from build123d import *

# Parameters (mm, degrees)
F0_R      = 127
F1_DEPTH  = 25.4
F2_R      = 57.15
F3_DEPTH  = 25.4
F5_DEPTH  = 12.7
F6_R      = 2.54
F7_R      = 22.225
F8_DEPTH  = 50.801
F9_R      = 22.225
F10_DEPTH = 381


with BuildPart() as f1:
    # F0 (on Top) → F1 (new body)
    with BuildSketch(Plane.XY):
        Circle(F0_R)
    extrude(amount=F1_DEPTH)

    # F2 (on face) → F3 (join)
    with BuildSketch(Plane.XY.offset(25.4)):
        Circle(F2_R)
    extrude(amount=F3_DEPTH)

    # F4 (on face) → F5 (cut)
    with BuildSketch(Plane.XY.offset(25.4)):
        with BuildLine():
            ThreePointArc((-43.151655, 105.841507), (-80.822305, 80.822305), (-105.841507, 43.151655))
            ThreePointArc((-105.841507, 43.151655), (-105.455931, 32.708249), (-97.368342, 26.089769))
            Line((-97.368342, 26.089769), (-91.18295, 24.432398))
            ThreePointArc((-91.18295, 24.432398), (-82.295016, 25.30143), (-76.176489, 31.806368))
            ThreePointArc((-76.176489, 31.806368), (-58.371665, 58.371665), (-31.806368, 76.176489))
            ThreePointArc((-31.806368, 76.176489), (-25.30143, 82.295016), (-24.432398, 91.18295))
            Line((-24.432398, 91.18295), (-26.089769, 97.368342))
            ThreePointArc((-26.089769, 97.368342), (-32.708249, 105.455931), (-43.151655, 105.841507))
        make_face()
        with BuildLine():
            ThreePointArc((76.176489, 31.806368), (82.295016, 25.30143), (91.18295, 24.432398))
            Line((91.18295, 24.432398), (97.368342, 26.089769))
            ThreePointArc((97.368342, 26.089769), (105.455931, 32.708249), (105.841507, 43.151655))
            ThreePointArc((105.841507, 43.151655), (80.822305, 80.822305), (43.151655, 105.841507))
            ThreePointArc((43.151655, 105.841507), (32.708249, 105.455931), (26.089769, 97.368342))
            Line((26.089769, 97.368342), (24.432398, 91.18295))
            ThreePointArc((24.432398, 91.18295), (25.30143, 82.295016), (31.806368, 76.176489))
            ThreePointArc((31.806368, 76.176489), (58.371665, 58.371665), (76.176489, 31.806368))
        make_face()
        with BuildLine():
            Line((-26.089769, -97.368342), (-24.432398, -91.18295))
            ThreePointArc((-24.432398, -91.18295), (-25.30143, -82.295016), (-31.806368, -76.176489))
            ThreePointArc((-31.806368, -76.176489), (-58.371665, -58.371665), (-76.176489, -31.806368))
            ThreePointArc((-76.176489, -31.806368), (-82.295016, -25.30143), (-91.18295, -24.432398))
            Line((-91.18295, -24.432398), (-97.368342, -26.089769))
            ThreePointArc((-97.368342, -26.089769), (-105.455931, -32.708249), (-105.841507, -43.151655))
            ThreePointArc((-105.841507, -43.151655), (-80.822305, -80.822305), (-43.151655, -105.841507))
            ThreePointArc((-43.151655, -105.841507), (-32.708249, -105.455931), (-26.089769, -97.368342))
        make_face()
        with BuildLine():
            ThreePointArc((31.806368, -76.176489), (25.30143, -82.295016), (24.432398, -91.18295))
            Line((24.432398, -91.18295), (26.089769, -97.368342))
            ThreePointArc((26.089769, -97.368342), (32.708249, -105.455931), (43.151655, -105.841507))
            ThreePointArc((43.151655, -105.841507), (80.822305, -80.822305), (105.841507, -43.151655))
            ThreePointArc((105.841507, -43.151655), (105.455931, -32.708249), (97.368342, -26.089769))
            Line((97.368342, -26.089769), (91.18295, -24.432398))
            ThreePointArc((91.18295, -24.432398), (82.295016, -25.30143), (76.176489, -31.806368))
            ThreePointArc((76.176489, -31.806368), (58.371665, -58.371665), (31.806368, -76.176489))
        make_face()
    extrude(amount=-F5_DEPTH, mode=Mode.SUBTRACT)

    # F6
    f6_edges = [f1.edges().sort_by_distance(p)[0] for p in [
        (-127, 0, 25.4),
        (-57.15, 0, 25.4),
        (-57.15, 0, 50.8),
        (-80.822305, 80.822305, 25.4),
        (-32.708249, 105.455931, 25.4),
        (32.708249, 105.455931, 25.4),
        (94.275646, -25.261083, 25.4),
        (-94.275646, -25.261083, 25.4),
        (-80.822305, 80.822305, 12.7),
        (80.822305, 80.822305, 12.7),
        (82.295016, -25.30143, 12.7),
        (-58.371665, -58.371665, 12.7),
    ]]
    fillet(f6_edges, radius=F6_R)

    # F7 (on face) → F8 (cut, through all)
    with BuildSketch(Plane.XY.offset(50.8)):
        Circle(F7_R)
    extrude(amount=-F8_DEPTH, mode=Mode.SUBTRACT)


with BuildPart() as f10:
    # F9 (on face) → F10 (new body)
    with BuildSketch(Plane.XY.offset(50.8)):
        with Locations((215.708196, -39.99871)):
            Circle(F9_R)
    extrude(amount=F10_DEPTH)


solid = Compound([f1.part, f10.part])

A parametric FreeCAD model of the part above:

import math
import FreeCAD as App
import Part
import Sketcher
Q = App.Units.Quantity


def edges_at(feature, points):
    """Names of the edges that pass closest to the given points."""
    edges = feature.Shape.Edges
    near = lambda p: min(range(len(edges)), key=lambda i: edges[i].distToShape(Part.Vertex(*p))[0])
    return sorted({f"Edge{near(p) + 1}" for p in points})

doc = App.newDocument("Part")
body = doc.addObject("PartDesign::Body", "Body")

sketch1 = doc.addObject("Sketcher::SketchObject", "Sketch")
body.addObject(sketch1)
sketch1.AttachmentSupport = (doc.XY_Plane, [""])
sketch1.MapMode = "FlatFace"
sketch1.addGeometry(Part.Circle(App.Vector(0, 0, 0), App.Vector(0, 0, 1), 127), False)
sketch1.addConstraint([
    Sketcher.Constraint("Coincident", 0, 3, -1, 1),
    Sketcher.Constraint("Diameter", 0, Q("10 in")),
])
pad1 = doc.addObject("PartDesign::Pad", "Pad")
body.addObject(pad1)
pad1.Profile = sketch1
pad1.Length = Q("1 in")

sketch2 = doc.addObject("Sketcher::SketchObject", "Sketch001")
body.addObject(sketch2)
sketch2.AttachmentSupport = (doc.XY_Plane, [""])
sketch2.MapMode = "FlatFace"
sketch2.AttachmentOffset = App.Placement(App.Vector(0, 0, 1 * 25.4), App.Rotation())
sketch2.addGeometry(Part.Circle(App.Vector(0, 0, 0), App.Vector(0, 0, 1), 57), False)
sketch2.addConstraint([
    Sketcher.Constraint("Coincident", 0, 3, -1, 1),
    Sketcher.Constraint("Diameter", 0, Q("4.5 in")),
])
pad2 = doc.addObject("PartDesign::Pad", "Pad001")
body.addObject(pad2)
pad2.Profile = sketch2
pad2.Length = Q("1 in")

sketch3 = doc.addObject("Sketcher::SketchObject", "Sketch002")
body.addObject(sketch3)
sketch3.AttachmentSupport = (doc.XY_Plane, [""])
sketch3.MapMode = "FlatFace"
sketch3.AttachmentOffset = App.Placement(App.Vector(0, 0, 1 * 25.4), App.Rotation())
sketch3.addGeometry([
    Part.ArcOfCircle(Part.Circle(App.Vector(0, 0, 0), App.Vector(0, 0, 1), 114), math.radians(112), math.radians(158)),
    Part.ArcOfCircle(Part.Circle(App.Vector(-94, 38, 0), App.Vector(0, 0, 1), 13), math.radians(158), math.radians(255)),
    Part.LineSegment(App.Vector(-97, 26, 0), App.Vector(-91, 24, 0)),
    Part.ArcOfCircle(Part.Circle(App.Vector(-88, 37, 0), App.Vector(0, 0, 1), 13), math.radians(-105), math.radians(-23)),
    Part.ArcOfCircle(Part.Circle(App.Vector(0, 0, 0), App.Vector(0, 0, 1), 83), math.radians(113), math.radians(157)),
    Part.ArcOfCircle(Part.Circle(App.Vector(-37, 88, 0), App.Vector(0, 0, 1), 13), math.radians(-67), math.radians(15)),
    Part.LineSegment(App.Vector(-24, 91, 0), App.Vector(-26, 97, 0)),
    Part.ArcOfCircle(Part.Circle(App.Vector(-38, 94, 0), App.Vector(0, 0, 1), 13), math.radians(15), math.radians(112)),
    Part.ArcOfCircle(Part.Circle(App.Vector(88, 37, 0), App.Vector(0, 0, 1), 13), math.radians(-157), math.radians(-75)),
    Part.LineSegment(App.Vector(91, 24, 0), App.Vector(97, 26, 0)),
    Part.ArcOfCircle(Part.Circle(App.Vector(94, 38, 0), App.Vector(0, 0, 1), 13), math.radians(-75), math.radians(22)),
    Part.ArcOfCircle(Part.Circle(App.Vector(0, 0, 0), App.Vector(0, 0, 1), 114), math.radians(22), math.radians(68)),
    Part.ArcOfCircle(Part.Circle(App.Vector(38, 94, 0), App.Vector(0, 0, 1), 13), math.radians(68), math.radians(165)),
    Part.LineSegment(App.Vector(26, 97, 0), App.Vector(24, 91, 0)),
    Part.ArcOfCircle(Part.Circle(App.Vector(37, 88, 0), App.Vector(0, 0, 1), 13), math.radians(165), math.radians(247)),
    Part.ArcOfCircle(Part.Circle(App.Vector(0, 0, 0), App.Vector(0, 0, 1), 83), math.radians(23), math.radians(67)),
    Part.LineSegment(App.Vector(-26, -97, 0), App.Vector(-24, -91, 0)),
    Part.ArcOfCircle(Part.Circle(App.Vector(-37, -88, 0), App.Vector(0, 0, 1), 13), math.radians(-15), math.radians(67)),
    Part.ArcOfCircle(Part.Circle(App.Vector(0, 0, 0), App.Vector(0, 0, 1), 83), math.radians(-157), math.radians(-113)),
    Part.ArcOfCircle(Part.Circle(App.Vector(-88, -37, 0), App.Vector(0, 0, 1), 13), math.radians(23), math.radians(105)),
    Part.LineSegment(App.Vector(-91, -24, 0), App.Vector(-97, -26, 0)),
    Part.ArcOfCircle(Part.Circle(App.Vector(-94, -38, 0), App.Vector(0, 0, 1), 13), math.radians(105), math.radians(202)),
    Part.ArcOfCircle(Part.Circle(App.Vector(0, 0, 0), App.Vector(0, 0, 1), 114), math.radians(-158), math.radians(-112)),
    Part.ArcOfCircle(Part.Circle(App.Vector(-38, -94, 0), App.Vector(0, 0, 1), 13), math.radians(-112), math.radians(-15)),
    Part.ArcOfCircle(Part.Circle(App.Vector(37, -88, 0), App.Vector(0, 0, 1), 13), math.radians(113), math.radians(195)),
    Part.LineSegment(App.Vector(24, -91, 0), App.Vector(26, -97, 0)),
    Part.ArcOfCircle(Part.Circle(App.Vector(38, -94, 0), App.Vector(0, 0, 1), 13), math.radians(-165), math.radians(-68)),
    Part.ArcOfCircle(Part.Circle(App.Vector(0, 0, 0), App.Vector(0, 0, 1), 114), math.radians(-68), math.radians(-22)),
    Part.ArcOfCircle(Part.Circle(App.Vector(94, -38, 0), App.Vector(0, 0, 1), 13), math.radians(-22), math.radians(75)),
    Part.LineSegment(App.Vector(97, -26, 0), App.Vector(91, -24, 0)),
    Part.ArcOfCircle(Part.Circle(App.Vector(88, -37, 0), App.Vector(0, 0, 1), 13), math.radians(75), math.radians(157)),
    Part.ArcOfCircle(Part.Circle(App.Vector(0, 0, 0), App.Vector(0, 0, 1), 83), math.radians(-67), math.radians(-23)),
], False)
sketch3.addConstraint([
    Sketcher.Constraint("Tangent", 0, 2, 1, 1),
    Sketcher.Constraint("Tangent", 1, 2, 2, 1),
    Sketcher.Constraint("Tangent", 2, 2, 3, 1),
    Sketcher.Constraint("Tangent", 3, 2, 4, 2),
    Sketcher.Constraint("Tangent", 4, 1, 5, 1),
    Sketcher.Constraint("Tangent", 5, 2, 6, 1),
    Sketcher.Constraint("Tangent", 6, 2, 7, 1),
    Sketcher.Constraint("Tangent", 7, 2, 0, 1),
    Sketcher.Constraint("Tangent", 8, 2, 9, 1),
    Sketcher.Constraint("Tangent", 9, 2, 10, 1),
    Sketcher.Constraint("Tangent", 10, 2, 11, 1),
    Sketcher.Constraint("Tangent", 11, 2, 12, 1),
    Sketcher.Constraint("Tangent", 12, 2, 13, 1),
    Sketcher.Constraint("Tangent", 13, 2, 14, 1),
    Sketcher.Constraint("Tangent", 14, 2, 15, 2),
    Sketcher.Constraint("Tangent", 15, 1, 8, 1),
    Sketcher.Constraint("Tangent", 16, 2, 17, 1),
    Sketcher.Constraint("Tangent", 17, 2, 18, 2),
    Sketcher.Constraint("Tangent", 18, 1, 19, 1),
    Sketcher.Constraint("Tangent", 19, 2, 20, 1),
    Sketcher.Constraint("Tangent", 20, 2, 21, 1),
    Sketcher.Constraint("Tangent", 21, 2, 22, 1),
    Sketcher.Constraint("Tangent", 22, 2, 23, 1),
    Sketcher.Constraint("Tangent", 23, 2, 16, 1),
    Sketcher.Constraint("Tangent", 24, 2, 25, 1),
    Sketcher.Constraint("Tangent", 25, 2, 26, 1),
    Sketcher.Constraint("Tangent", 26, 2, 27, 1),
    Sketcher.Constraint("Tangent", 27, 2, 28, 1),
    Sketcher.Constraint("Tangent", 28, 2, 29, 1),
    Sketcher.Constraint("Tangent", 29, 2, 30, 1),
    Sketcher.Constraint("Tangent", 30, 2, 31, 2),
    Sketcher.Constraint("Tangent", 31, 1, 24, 1),
    Sketcher.Constraint("Coincident", 0, 3, -1, 1),
    Sketcher.Constraint("Coincident", 4, 3, -1, 1),
    Sketcher.Constraint("Coincident", 11, 3, -1, 1),
    Sketcher.Constraint("Coincident", 15, 3, -1, 1),
    Sketcher.Constraint("Coincident", 18, 3, -1, 1),
    Sketcher.Constraint("Coincident", 22, 3, -1, 1),
    Sketcher.Constraint("Coincident", 27, 3, -1, 1),
    Sketcher.Constraint("Coincident", 31, 3, -1, 1),
    Sketcher.Constraint("Equal", 1, 3),
    Sketcher.Constraint("Equal", 3, 5),
    Sketcher.Constraint("Equal", 5, 7),
    Sketcher.Constraint("Equal", 7, 8),
    Sketcher.Constraint("Equal", 8, 10),
    Sketcher.Constraint("Equal", 0, 11),
    Sketcher.Constraint("Equal", 10, 12),
    Sketcher.Constraint("Equal", 12, 14),
    Sketcher.Constraint("Equal", 4, 15),
    Sketcher.Constraint("Equal", 14, 17),
    Sketcher.Constraint("Equal", 15, 18),
    Sketcher.Constraint("Equal", 17, 19),
    Sketcher.Constraint("Equal", 19, 21),
    Sketcher.Constraint("Equal", 11, 22),
    Sketcher.Constraint("Equal", 21, 23),
    Sketcher.Constraint("Equal", 23, 24),
    Sketcher.Constraint("Equal", 24, 26),
    Sketcher.Constraint("Equal", 22, 27),
    Sketcher.Constraint("Equal", 26, 28),
    Sketcher.Constraint("Equal", 28, 30),
    Sketcher.Constraint("Equal", 18, 31),
    Sketcher.Constraint("Symmetric", 13, 2, 16, 2, -1, 1),
    Sketcher.Constraint("Symmetric", 8, 2, 19, 2, -1, 1),
    Sketcher.Constraint("Symmetric", 5, 2, 24, 2, -1, 1),
    Sketcher.Constraint("Symmetric", 1, 2, 28, 2, -1, 1),
    Sketcher.Constraint("Symmetric", 2, 2, 8, 2, -2),
    Sketcher.Constraint("Symmetric", 6, 2, 12, 2, -2),
    Sketcher.Constraint("Perpendicular", 6, 9),
    Sketcher.Constraint("Radius", 0, Q("4.4999999 in")),
    Sketcher.Constraint("Radius", 1, Q("0.4999999 in")),
    Sketcher.Constraint("Radius", 4, Q("3.2499999 in")),
    Sketcher.Constraint("Angle", 2, Q("-15.000002 deg")),
    Sketcher.Constraint("DistanceY", 3, 2, 1, 3, Q("0.2578999 in")),
    Sketcher.Constraint("DistanceX", 14, 2, 12, 3, Q("0.2578999 in")),
])
pocket1 = doc.addObject("PartDesign::Pocket", "Pocket")
body.addObject(pocket1)
pocket1.Profile = sketch3
pocket1.Length = Q("0.5 in")
doc.recompute()

fillet = doc.addObject("PartDesign::Fillet", "Fillet")
body.addObject(fillet)
fillet.Base = (pocket1, edges_at(pocket1, [
    (-127, 0, 25.4),
    (-57.15, 0, 25.4),
    (-57.15, 0, 50.8),
    (-80.822, 80.822, 25.4),
    (-32.708, 105.456, 25.4),
    (32.708, 105.456, 25.4),
    (94.276, -25.261, 25.4),
    (-94.276, -25.261, 25.4),
    (-80.822, 80.822, 12.7),
    (80.822, 80.822, 12.7),
    (82.295, -25.301, 12.7),
    (-58.372, -58.372, 12.7),
]))
fillet.Radius = Q("0.1 in")

sketch4 = doc.addObject("Sketcher::SketchObject", "Sketch003")
body.addObject(sketch4)
sketch4.AttachmentSupport = (doc.XY_Plane, [""])
sketch4.MapMode = "FlatFace"
sketch4.AttachmentOffset = App.Placement(App.Vector(0, 0, 2 * 25.4), App.Rotation())
sketch4.addGeometry(Part.Circle(App.Vector(0, 0, 0), App.Vector(0, 0, 1), 22), False)
sketch4.addConstraint([
    Sketcher.Constraint("Coincident", 0, 3, -1, 1),
    Sketcher.Constraint("Diameter", 0, Q("1.75 in")),
])
pocket2 = doc.addObject("PartDesign::Pocket", "Pocket001")
body.addObject(pocket2)
pocket2.Profile = sketch4
pocket2.Type = "ThroughAll"
body2 = doc.addObject("PartDesign::Body", "Body001")

sketch5 = doc.addObject("Sketcher::SketchObject", "Sketch004")
body2.addObject(sketch5)
sketch5.AttachmentSupport = (doc.getObject("XY_Plane001"), [""])
sketch5.MapMode = "FlatFace"
sketch5.AttachmentOffset = App.Placement(App.Vector(0, 0, 2 * 25.4), App.Rotation())
sketch5.addGeometry(Part.Circle(App.Vector(216, -40, 0), App.Vector(0, 0, 1), 22), False)
sketch5.addConstraint([
    Sketcher.Constraint("Diameter", 0, Q("1.75 in")),
    Sketcher.Constraint("DistanceY", 0, 3, -1, 1, 39.99871),
    Sketcher.Constraint("DistanceX", -1, 1, 0, 3, 215.708196),
])
pad3 = doc.addObject("PartDesign::Pad", "Pad002")
body2.addObject(pad3)
pad3.Profile = sketch5
pad3.Length = Q("15 in")

doc.recompute()
